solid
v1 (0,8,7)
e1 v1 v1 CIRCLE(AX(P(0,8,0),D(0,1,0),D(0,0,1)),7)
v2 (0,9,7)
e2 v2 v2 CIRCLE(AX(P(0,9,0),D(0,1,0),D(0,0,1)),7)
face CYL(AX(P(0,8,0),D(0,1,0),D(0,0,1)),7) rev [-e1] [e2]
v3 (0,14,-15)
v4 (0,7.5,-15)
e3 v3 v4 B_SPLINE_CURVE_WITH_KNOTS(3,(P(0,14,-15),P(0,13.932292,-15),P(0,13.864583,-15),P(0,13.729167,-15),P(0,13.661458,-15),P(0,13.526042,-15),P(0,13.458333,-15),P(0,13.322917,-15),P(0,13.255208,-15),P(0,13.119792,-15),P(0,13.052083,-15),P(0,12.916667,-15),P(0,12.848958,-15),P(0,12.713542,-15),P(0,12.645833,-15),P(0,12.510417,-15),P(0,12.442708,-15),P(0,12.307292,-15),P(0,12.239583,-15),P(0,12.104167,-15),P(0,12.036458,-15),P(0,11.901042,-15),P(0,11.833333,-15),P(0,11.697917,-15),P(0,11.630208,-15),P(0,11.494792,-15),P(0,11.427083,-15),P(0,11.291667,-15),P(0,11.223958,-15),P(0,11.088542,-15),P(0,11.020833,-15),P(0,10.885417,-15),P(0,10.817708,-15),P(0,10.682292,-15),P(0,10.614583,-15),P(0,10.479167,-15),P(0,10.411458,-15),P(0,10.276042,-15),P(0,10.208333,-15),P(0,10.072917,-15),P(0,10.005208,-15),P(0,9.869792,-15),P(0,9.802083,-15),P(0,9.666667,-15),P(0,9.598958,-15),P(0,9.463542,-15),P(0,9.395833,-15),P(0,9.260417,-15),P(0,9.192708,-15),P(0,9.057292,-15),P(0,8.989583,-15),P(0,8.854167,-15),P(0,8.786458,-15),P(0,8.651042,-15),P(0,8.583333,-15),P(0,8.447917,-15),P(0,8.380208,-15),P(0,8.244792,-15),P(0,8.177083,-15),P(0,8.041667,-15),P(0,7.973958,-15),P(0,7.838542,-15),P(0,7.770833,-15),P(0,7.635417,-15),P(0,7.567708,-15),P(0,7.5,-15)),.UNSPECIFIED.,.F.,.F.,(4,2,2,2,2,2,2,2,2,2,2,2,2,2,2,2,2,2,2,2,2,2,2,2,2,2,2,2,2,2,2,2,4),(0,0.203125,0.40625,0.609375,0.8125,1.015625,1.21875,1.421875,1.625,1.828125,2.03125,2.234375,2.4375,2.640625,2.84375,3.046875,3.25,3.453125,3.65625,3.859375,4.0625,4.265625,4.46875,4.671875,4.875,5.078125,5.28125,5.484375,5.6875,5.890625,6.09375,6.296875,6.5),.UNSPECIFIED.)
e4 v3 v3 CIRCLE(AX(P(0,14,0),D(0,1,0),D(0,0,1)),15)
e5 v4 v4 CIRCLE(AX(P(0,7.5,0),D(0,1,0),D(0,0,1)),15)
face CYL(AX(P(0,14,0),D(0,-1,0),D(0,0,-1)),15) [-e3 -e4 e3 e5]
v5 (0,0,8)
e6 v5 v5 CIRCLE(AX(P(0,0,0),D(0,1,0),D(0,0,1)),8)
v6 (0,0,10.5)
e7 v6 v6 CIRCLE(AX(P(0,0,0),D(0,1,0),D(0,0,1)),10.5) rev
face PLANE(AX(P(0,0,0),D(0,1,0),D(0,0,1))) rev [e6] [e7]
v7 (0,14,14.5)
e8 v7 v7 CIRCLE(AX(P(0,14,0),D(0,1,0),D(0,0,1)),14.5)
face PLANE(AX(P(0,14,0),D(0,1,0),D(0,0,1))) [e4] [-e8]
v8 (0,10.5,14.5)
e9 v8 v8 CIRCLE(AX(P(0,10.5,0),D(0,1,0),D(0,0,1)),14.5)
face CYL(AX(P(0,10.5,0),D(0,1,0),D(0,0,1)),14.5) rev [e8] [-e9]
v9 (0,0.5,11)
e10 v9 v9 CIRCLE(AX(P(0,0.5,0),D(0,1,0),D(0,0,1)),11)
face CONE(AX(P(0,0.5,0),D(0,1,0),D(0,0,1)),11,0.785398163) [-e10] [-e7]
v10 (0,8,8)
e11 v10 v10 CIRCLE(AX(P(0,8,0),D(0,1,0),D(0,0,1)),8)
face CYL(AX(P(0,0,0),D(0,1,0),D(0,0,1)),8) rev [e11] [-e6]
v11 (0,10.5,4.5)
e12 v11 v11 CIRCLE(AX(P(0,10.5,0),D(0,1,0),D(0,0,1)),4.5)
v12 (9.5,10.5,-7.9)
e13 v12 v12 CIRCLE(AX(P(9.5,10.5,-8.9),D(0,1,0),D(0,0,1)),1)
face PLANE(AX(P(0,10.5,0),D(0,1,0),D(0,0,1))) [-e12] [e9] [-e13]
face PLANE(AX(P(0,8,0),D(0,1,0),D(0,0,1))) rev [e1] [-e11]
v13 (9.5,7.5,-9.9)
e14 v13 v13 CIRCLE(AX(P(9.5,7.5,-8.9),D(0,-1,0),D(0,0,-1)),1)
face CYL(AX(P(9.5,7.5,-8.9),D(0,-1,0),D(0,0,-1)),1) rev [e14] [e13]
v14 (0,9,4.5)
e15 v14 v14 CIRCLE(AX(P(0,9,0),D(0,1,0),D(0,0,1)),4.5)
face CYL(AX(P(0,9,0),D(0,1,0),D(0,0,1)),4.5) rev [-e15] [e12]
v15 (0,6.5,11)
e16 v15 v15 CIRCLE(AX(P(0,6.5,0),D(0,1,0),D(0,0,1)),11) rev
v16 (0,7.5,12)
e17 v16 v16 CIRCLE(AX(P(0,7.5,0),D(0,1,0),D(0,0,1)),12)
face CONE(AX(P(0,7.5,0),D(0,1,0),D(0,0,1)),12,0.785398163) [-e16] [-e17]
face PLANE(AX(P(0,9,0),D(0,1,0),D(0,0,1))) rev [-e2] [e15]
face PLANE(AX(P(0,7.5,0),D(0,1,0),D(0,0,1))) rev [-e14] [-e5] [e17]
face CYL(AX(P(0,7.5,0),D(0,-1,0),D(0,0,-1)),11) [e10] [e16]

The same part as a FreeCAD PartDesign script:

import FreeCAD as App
import Part
import Sketcher


def edges_at(feature, points):
    """Names of the edges that pass closest to the given points."""
    edges = feature.Shape.Edges
    near = lambda p: min(range(len(edges)), key=lambda i: edges[i].distToShape(Part.Vertex(*p))[0])
    return sorted({f"Edge{near(p) + 1}" for p in points})

doc = App.newDocument("Part")
body = doc.addObject("PartDesign::Body", "Body")

# Sketch on XZ plane
sketch1 = doc.addObject("Sketcher::SketchObject", "Sketch")
body.addObject(sketch1)
sketch1.AttachmentSupport = (doc.XZ_Plane, [""])
sketch1.MapMode = "FlatFace"
sketch1.addGeometry(Part.Circle(App.Vector(0, 0, 0), App.Vector(0, 0, 1), 11), False)
sketch1.addConstraint(Sketcher.Constraint("Coincident", 0, 3, -1, 1))
sketch1.addConstraint(Sketcher.Constraint("Diameter", 0, 22.0))
pad1 = doc.addObject("PartDesign::Pad", "Pad")
body.addObject(pad1)
pad1.Profile = sketch1
pad1.Length = 7.5
pad1.Reversed = True

# Sketch on XZ plane
sketch2 = doc.addObject("Sketcher::SketchObject", "Sketch001")
body.addObject(sketch2)
sketch2.AttachmentSupport = (doc.XZ_Plane, [""])
sketch2.MapMode = "FlatFace"
sketch2.AttachmentOffset = App.Placement(App.Vector(0, 0, -7.5), App.Rotation())
sketch2.addGeometry(Part.Circle(App.Vector(0, 0, 0), App.Vector(0, 0, 1), 15), False)
sketch2.addConstraint(Sketcher.Constraint("Coincident", 0, 3, -1, 1))
sketch2.addConstraint(Sketcher.Constraint("Diameter", 0, 30.0))
pad2 = doc.addObject("PartDesign::Pad", "Pad001")
body.addObject(pad2)
pad2.Profile = sketch2
pad2.Length = 6.5
pad2.Reversed = True
doc.recompute()

chamfer = doc.addObject("PartDesign::Chamfer", "Chamfer")
body.addObject(chamfer)
chamfer.Base = (pad2, edges_at(pad2, [(0, 0, -11)]))
chamfer.Size = 0.5
doc.recompute()

chamfer2 = doc.addObject("PartDesign::Chamfer", "Chamfer001")
body.addObject(chamfer2)
chamfer2.Base = (chamfer, edges_at(chamfer, [(0, 7.5, -11)]))
chamfer2.Size = 1

# Sketch on XZ plane
sketch3 = doc.addObject("Sketcher::SketchObject", "Sketch002")
body.addObject(sketch3)
sketch3.AttachmentSupport = (doc.XZ_Plane, [""])
sketch3.MapMode = "FlatFace"
sketch3.AttachmentOffset = App.Placement(App.Vector(0, 0, -14), App.Rotation())
sketch3.addGeometry(Part.Circle(App.Vector(0, 0, 0), App.Vector(0, 0, 1), 14.5), False)
sketch3.addConstraint(Sketcher.Constraint("Coincident", 0, 3, -1, 1))
sketch3.addConstraint(Sketcher.Constraint("Diameter", 0, 29.0))
pocket1 = doc.addObject("PartDesign::Pocket", "Pocket")
body.addObject(pocket1)
pocket1.Profile = sketch3
pocket1.Length = 3.5
pocket1.Reversed = True

# Sketch on XZ plane
sketch4 = doc.addObject("Sketcher::SketchObject", "Sketch003")
body.addObject(sketch4)
sketch4.AttachmentSupport = (doc.XZ_Plane, [""])
sketch4.MapMode = "FlatFace"
sketch4.AttachmentOffset = App.Placement(App.Vector(0, 0, -10.5), App.Rotation())
sketch4.addGeometry(Part.Circle(App.Vector(0, 0, 0), App.Vector(0, 0, 1), 4.5), False)
sketch4.addConstraint(Sketcher.Constraint("Coincident", 0, 3, -1, 1))
sketch4.addConstraint(Sketcher.Constraint("Diameter", 0, 9.0))
pocket2 = doc.addObject("PartDesign::Pocket", "Pocket001")
body.addObject(pocket2)
pocket2.Profile = sketch4
pocket2.Length = 1.5
pocket2.Reversed = True

# Sketch on XZ plane
sketch5 = doc.addObject("Sketcher::SketchObject", "Sketch004")
body.addObject(sketch5)
sketch5.AttachmentSupport = (doc.XZ_Plane, [""])
sketch5.MapMode = "FlatFace"
sketch5.AttachmentOffset = App.Placement(App.Vector(0, 0, -9), App.Rotation())
sketch5.addGeometry(Part.Circle(App.Vector(0, 0, 0), App.Vector(0, 0, 1), 7), False)
sketch5.addConstraint(Sketcher.Constraint("Coincident", 0, 3, -1, 1))
sketch5.addConstraint(Sketcher.Constraint("Diameter", 0, 14.0))
pocket3 = doc.addObject("PartDesign::Pocket", "Pocket002")
body.addObject(pocket3)
pocket3.Profile = sketch5
pocket3.Length = 1
pocket3.Reversed = True

# Sketch on XZ plane
sketch6 = doc.addObject("Sketcher::SketchObject", "Sketch005")
body.addObject(sketch6)
sketch6.AttachmentSupport = (doc.XZ_Plane, [""])
sketch6.MapMode = "FlatFace"
sketch6.AttachmentOffset = App.Placement(App.Vector(0, 0, -8), App.Rotation())
sketch6.addGeometry(Part.Circle(App.Vector(0, 0, 0), App.Vector(0, 0, 1), 8), False)
sketch6.addConstraint(Sketcher.Constraint("Coincident", 0, 3, -1, 1))
sketch6.addConstraint(Sketcher.Constraint("Diameter", 0, 16.0))
pocket4 = doc.addObject("PartDesign::Pocket", "Pocket003")
body.addObject(pocket4)
pocket4.Profile = sketch6
pocket4.Length = 8
pocket4.Reversed = True

# Sketch on XZ plane
sketch7 = doc.addObject("Sketcher::SketchObject", "Sketch006")
body.addObject(sketch7)
sketch7.AttachmentSupport = (doc.XZ_Plane, [""])
sketch7.MapMode = "FlatFace"
sketch7.AttachmentOffset = App.Placement(App.Vector(0, 0, -7.5), App.Rotation())
sketch7.addGeometry(Part.Circle(App.Vector(9.5, -8.9, 0), App.Vector(0, 0, 1), 1), False)
sketch7.addConstraint(Sketcher.Constraint("Diameter", 0, 2.0))
sketch7.addConstraint(Sketcher.Constraint("DistanceX", -1, 1, 0, 3, 9.5))
sketch7.addConstraint(Sketcher.Constraint("DistanceY", 0, 3, -1, 1, 8.9))
doc.recompute()
hole = doc.addObject("PartDesign::Hole", "Hole")
body.addObject(hole)
hole.Profile = sketch7
hole.ThreadType = "None"
hole.Diameter = 2
hole.DepthType = "ThroughAll"

doc.recompute()
